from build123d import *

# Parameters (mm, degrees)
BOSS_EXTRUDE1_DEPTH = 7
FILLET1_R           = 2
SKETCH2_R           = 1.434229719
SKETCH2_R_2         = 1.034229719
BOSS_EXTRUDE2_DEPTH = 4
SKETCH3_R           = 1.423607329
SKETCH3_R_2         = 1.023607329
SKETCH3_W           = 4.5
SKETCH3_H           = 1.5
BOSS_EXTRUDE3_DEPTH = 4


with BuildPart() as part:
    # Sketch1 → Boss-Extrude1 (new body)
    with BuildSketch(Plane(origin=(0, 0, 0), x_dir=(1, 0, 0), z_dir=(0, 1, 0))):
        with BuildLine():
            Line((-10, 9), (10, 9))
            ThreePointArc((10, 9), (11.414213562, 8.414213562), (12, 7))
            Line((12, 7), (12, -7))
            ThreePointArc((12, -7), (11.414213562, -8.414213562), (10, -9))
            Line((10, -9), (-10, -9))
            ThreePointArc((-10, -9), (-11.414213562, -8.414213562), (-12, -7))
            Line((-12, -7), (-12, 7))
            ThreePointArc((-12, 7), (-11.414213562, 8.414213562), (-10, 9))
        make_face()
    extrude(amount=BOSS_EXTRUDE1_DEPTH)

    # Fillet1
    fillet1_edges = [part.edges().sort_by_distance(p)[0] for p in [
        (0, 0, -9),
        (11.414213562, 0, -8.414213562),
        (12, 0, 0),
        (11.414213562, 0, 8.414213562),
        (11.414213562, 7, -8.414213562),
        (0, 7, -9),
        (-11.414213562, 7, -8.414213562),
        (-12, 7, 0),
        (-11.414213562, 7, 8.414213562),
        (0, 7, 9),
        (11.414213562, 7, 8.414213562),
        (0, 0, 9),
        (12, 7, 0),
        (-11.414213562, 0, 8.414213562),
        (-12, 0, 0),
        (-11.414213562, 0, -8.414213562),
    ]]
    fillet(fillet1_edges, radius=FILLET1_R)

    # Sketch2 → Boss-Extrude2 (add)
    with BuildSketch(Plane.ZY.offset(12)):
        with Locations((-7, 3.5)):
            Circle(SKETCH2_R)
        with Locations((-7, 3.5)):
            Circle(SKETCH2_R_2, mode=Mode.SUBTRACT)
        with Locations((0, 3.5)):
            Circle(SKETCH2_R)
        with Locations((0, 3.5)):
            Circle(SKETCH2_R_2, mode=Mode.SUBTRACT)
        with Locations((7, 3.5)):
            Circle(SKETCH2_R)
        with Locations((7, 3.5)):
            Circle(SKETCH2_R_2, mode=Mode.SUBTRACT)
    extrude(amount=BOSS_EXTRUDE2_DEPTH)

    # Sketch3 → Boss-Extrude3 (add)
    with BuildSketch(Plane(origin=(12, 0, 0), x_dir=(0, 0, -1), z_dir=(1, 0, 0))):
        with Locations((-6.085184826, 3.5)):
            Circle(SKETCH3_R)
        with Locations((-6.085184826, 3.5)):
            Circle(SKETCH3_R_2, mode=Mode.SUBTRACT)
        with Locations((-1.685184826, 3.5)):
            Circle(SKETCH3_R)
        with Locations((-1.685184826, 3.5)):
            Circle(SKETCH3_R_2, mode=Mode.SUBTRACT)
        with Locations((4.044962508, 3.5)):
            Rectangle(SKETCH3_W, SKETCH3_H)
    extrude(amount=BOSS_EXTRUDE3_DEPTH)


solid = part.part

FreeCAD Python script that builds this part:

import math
import FreeCAD as App
import Part
import Sketcher

V = App.Vector
Q = App.Units.Quantity


def edges_at(feature, points):
    """Names of the edges that pass closest to the given points."""
    edges = feature.Shape.Edges
    near = lambda p: min(range(len(edges)), key=lambda i: edges[i].distToShape(Part.Vertex(*p))[0])
    return sorted({f"Edge{near(p) + 1}" for p in points})

doc = App.newDocument("Part")
body = doc.addObject("PartDesign::Body", "Body")

# Sketch on XZ plane
sketch1 = doc.addObject("Sketcher::SketchObject", "Sketch")
body.addObject(sketch1)
sketch1.AttachmentSupport = (doc.XZ_Plane, [""])
sketch1.MapMode = "FlatFace"
sketch1.addGeometry(Part.LineSegment(V(10, -9, 0), V(-10, -9, 0)), False)
sketch1.addGeometry(Part.ArcOfCircle(Part.Circle(V(-10, -7, 0), V(0, 0, 1), 2), math.radians(-180), math.radians(-90)), False)
sketch1.addGeometry(Part.LineSegment(V(-12, -7, 0), V(-12, 7, 0)), False)
sketch1.addGeometry(Part.ArcOfCircle(Part.Circle(V(-10, 7, 0), V(0, 0, 1), 2), math.radians(90), math.radians(180)), False)
sketch1.addGeometry(Part.LineSegment(V(-10, 9, 0), V(10, 9, 0)), False)
sketch1.addGeometry(Part.ArcOfCircle(Part.Circle(V(10, 7, 0), V(0, 0, 1), 2), math.radians(0), math.radians(90)), False)
sketch1.addGeometry(Part.LineSegment(V(12, 7, 0), V(12, -7, 0)), False)
sketch1.addGeometry(Part.ArcOfCircle(Part.Circle(V(10, -7, 0), V(0, 0, 1), 2), math.radians(-90), math.radians(0)), False)
sketch1.addConstraint(Sketcher.Constraint("Tangent", 0, 2, 1, 2))
sketch1.addConstraint(Sketcher.Constraint("Tangent", 1, 1, 2, 1))
sketch1.addConstraint(Sketcher.Constraint("Tangent", 2, 2, 3, 2))
sketch1.addConstraint(Sketcher.Constraint("Tangent", 3, 1, 4, 1))
sketch1.addConstraint(Sketcher.Constraint("Tangent", 4, 2, 5, 2))
sketch1.addConstraint(Sketcher.Constraint("Tangent", 5, 1, 6, 1))
sketch1.addConstraint(Sketcher.Constraint("Tangent", 6, 2, 7, 2))
sketch1.addConstraint(Sketcher.Constraint("Tangent", 7, 1, 0, 1))
sketch1.addConstraint(Sketcher.Constraint("Horizontal", 0))
sketch1.addConstraint(Sketcher.Constraint("Vertical", 2))
sketch1.addConstraint(Sketcher.Constraint("Horizontal", 4))
sketch1.addConstraint(Sketcher.Constraint("Vertical", 6))
sketch1.addConstraint(Sketcher.Constraint("Equal", 1, 3))
sketch1.addConstraint(Sketcher.Constraint("Equal", 3, 5))
sketch1.addConstraint(Sketcher.Constraint("Equal", 5, 7))
sketch1.addConstraint(Sketcher.Constraint("Symmetric", 1, 3, 5, 3, -1, 1))
sketch1.addConstraint(Sketcher.Constraint("Radius", 1, Q("2 mm")))
sketch1.addConstraint(Sketcher.Constraint("DistanceX", 0, 2, 0, 1, Q("20 mm")))
sketch1.addConstraint(Sketcher.Constraint("DistanceY", 2, 1, 2, 2, Q("14 mm")))
pad1 = doc.addObject("PartDesign::Pad", "Pad")
body.addObject(pad1)
pad1.Profile = sketch1
pad1.Length = 7
pad1.Reversed = True
doc.recompute()

fillet = doc.addObject("PartDesign::Fillet", "Fillet")
body.addObject(fillet)
fillet.Base = (pad1, edges_at(pad1, [
    (0, 0, -9),
    (11.414, 0, -8.414),
    (12, 0, 0),
    (11.414, 0, 8.414),
    (11.414, 7, -8.414),
    (0, 7, -9),
    (-11.414, 7, -8.414),
    (-12, 7, 0),
    (-11.414, 7, 8.414),
    (0, 7, 9),
    (11.414, 7, 8.414),
    (0, 0, 9),
    (12, 7, 0),
    (-11.414, 0, 8.414),
    (-12, 0, 0),
    (-11.414, 0, -8.414),
]))
fillet.Radius = 2

# Sketch on YZ plane
sketch2 = doc.addObject("Sketcher::SketchObject", "Sketch001")
body.addObject(sketch2)
sketch2.AttachmentSupport = (doc.YZ_Plane, [""])
sketch2.MapMode = "FlatFace"
sketch2.AttachmentOffset = App.Placement(V(0, 0, -12), App.Rotation())
sketch2.addGeometry(Part.Circle(V(3.5, -7, 0), V(0, 0, 1), 1.43423), False)
sketch2.addGeometry(Part.Circle(V(3.5, -7, 0), V(0, 0, 1), 1.03423), False)
sketch2.addGeometry(Part.Circle(V(3.5, 0, 0), V(0, 0, 1), 1.43423), False)
sketch2.addGeometry(Part.Circle(V(3.5, 0, 0), V(0, 0, 1), 1.03423), False)
sketch2.addGeometry(Part.Circle(V(3.5, 7, 0), V(0, 0, 1), 1.43423), False)
sketch2.addGeometry(Part.Circle(V(3.5, 7, 0), V(0, 0, 1), 1.03423), False)
sketch2.addConstraint(Sketcher.Constraint("Coincident", 1, 3, 0, 3))
sketch2.addConstraint(Sketcher.Constraint("Coincident", 3, 3, 2, 3))
sketch2.addConstraint(Sketcher.Constraint("Coincident", 5, 3, 4, 3))
sketch2.addConstraint(Sketcher.Constraint("Equal", 0, 2))
sketch2.addConstraint(Sketcher.Constraint("Equal", 1, 3))
sketch2.addConstraint(Sketcher.Constraint("Equal", 2, 4))
sketch2.addConstraint(Sketcher.Constraint("Equal", 3, 5))
sketch2.addConstraint(Sketcher.Constraint("Symmetric", 0, 3, 4, 3, -1))
sketch2.addConstraint(Sketcher.Constraint("PointOnObject", 2, 3, -1))
sketch2.addConstraint(Sketcher.Constraint("Vertical", 1, 3, 2, 3))
sketch2.addConstraint(Sketcher.Constraint("DistanceY", 0, 3, -1, 1, Q("7 mm")))
sketch2.addConstraint(Sketcher.Constraint("DistanceX", -1, 1, 0, 3, Q("3.5 mm")))
sketch2.addConstraint(Sketcher.Constraint("Diameter", 0, Q("2.868459 mm")))
sketch2.addConstraint(Sketcher.Constraint("Diameter", 1, Q("2.068459 mm")))
pad2 = doc.addObject("PartDesign::Pad", "Pad001")
body.addObject(pad2)
pad2.Profile = sketch2
pad2.Length = 4
pad2.Reversed = True

# Sketch on YZ plane
sketch3 = doc.addObject("Sketcher::SketchObject", "Sketch002")
body.addObject(sketch3)
sketch3.AttachmentSupport = (doc.YZ_Plane, [""])
sketch3.MapMode = "FlatFace"
sketch3.AttachmentOffset = App.Placement(V(0, 0, 12), App.Rotation())
sketch3.addGeometry(Part.Circle(V(3.5, 6.085185, 0), V(0, 0, 1), 1.423607), False)
sketch3.addGeometry(Part.Circle(V(3.5, 6.085185, 0), V(0, 0, 1), 1.023607), False)
sketch3.addGeometry(Part.Circle(V(3.5, 1.685185, 0), V(0, 0, 1), 1.423607), False)
sketch3.addGeometry(Part.Circle(V(3.5, 1.685185, 0), V(0, 0, 1), 1.023607), False)
sketch3.addGeometry(Part.LineSegment(V(4.25, -1.794963, 0), V(2.75, -1.794963, 0)), False)
sketch3.addGeometry(Part.LineSegment(V(2.75, -1.794963, 0), V(2.75, -6.294963, 0)), False)
sketch3.addGeometry(Part.LineSegment(V(2.75, -6.294963, 0), V(4.25, -6.294963, 0)), False)
sketch3.addGeometry(Part.LineSegment(V(4.25, -6.294963, 0), V(4.25, -1.794963, 0)), False)
sketch3.addConstraint(Sketcher.Constraint("Coincident", 4, 2, 5, 1))
sketch3.addConstraint(Sketcher.Constraint("Coincident", 5, 2, 6, 1))
sketch3.addConstraint(Sketcher.Constraint("Coincident", 6, 2, 7, 1))
sketch3.addConstraint(Sketcher.Constraint("Coincident", 7, 2, 4, 1))
sketch3.addConstraint(Sketcher.Constraint("Horizontal", 4))
sketch3.addConstraint(Sketcher.Constraint("Vertical", 5))
sketch3.addConstraint(Sketcher.Constraint("Horizontal", 6))
sketch3.addConstraint(Sketcher.Constraint("Vertical", 7))
sketch3.addConstraint(Sketcher.Constraint("Coincident", 1, 3, 0, 3))
sketch3.addConstraint(Sketcher.Constraint("Coincident", 3, 3, 2, 3))
sketch3.addConstraint(Sketcher.Constraint("Equal", 0, 2))
sketch3.addConstraint(Sketcher.Constraint("Equal", 1, 3))
sketch3.addConstraint(Sketcher.Constraint("Vertical", 1, 3, 2, 3))
sketch3.addConstraint(Sketcher.Constraint("DistanceX", 4, 2, 4, 1, Q("1.5 mm")))
sketch3.addConstraint(Sketcher.Constraint("DistanceY", 5, 2, 5, 1, Q("4.5 mm")))
sketch3.addConstraint(Sketcher.Constraint("DistanceX", -1, 1, 0, 3, Q("3.5 mm")))
sketch3.addConstraint(Sketcher.Constraint("DistanceY", 2, 3, 0, 3, Q("4.4 mm")))
sketch3.addConstraint(Sketcher.Constraint("DistanceX", -1, 1, 4, 2, Q("2.75 mm")))
sketch3.addConstraint(Sketcher.Constraint("Diameter", 0, Q("2.847215 mm")))
sketch3.addConstraint(Sketcher.Constraint("Diameter", 1, Q("2.047215 mm")))
sketch3.addConstraint(Sketcher.Constraint("DistanceY", -1, 1, 0, 3, Q("6.085185 mm")))
sketch3.addConstraint(Sketcher.Constraint("DistanceY", 4, 2, -1, 1, Q("1.794963 mm")))
pad3 = doc.addObject("PartDesign::Pad", "Pad002")
body.addObject(pad3)
pad3.Profile = sketch3
pad3.Length = 4

doc.recompute()
